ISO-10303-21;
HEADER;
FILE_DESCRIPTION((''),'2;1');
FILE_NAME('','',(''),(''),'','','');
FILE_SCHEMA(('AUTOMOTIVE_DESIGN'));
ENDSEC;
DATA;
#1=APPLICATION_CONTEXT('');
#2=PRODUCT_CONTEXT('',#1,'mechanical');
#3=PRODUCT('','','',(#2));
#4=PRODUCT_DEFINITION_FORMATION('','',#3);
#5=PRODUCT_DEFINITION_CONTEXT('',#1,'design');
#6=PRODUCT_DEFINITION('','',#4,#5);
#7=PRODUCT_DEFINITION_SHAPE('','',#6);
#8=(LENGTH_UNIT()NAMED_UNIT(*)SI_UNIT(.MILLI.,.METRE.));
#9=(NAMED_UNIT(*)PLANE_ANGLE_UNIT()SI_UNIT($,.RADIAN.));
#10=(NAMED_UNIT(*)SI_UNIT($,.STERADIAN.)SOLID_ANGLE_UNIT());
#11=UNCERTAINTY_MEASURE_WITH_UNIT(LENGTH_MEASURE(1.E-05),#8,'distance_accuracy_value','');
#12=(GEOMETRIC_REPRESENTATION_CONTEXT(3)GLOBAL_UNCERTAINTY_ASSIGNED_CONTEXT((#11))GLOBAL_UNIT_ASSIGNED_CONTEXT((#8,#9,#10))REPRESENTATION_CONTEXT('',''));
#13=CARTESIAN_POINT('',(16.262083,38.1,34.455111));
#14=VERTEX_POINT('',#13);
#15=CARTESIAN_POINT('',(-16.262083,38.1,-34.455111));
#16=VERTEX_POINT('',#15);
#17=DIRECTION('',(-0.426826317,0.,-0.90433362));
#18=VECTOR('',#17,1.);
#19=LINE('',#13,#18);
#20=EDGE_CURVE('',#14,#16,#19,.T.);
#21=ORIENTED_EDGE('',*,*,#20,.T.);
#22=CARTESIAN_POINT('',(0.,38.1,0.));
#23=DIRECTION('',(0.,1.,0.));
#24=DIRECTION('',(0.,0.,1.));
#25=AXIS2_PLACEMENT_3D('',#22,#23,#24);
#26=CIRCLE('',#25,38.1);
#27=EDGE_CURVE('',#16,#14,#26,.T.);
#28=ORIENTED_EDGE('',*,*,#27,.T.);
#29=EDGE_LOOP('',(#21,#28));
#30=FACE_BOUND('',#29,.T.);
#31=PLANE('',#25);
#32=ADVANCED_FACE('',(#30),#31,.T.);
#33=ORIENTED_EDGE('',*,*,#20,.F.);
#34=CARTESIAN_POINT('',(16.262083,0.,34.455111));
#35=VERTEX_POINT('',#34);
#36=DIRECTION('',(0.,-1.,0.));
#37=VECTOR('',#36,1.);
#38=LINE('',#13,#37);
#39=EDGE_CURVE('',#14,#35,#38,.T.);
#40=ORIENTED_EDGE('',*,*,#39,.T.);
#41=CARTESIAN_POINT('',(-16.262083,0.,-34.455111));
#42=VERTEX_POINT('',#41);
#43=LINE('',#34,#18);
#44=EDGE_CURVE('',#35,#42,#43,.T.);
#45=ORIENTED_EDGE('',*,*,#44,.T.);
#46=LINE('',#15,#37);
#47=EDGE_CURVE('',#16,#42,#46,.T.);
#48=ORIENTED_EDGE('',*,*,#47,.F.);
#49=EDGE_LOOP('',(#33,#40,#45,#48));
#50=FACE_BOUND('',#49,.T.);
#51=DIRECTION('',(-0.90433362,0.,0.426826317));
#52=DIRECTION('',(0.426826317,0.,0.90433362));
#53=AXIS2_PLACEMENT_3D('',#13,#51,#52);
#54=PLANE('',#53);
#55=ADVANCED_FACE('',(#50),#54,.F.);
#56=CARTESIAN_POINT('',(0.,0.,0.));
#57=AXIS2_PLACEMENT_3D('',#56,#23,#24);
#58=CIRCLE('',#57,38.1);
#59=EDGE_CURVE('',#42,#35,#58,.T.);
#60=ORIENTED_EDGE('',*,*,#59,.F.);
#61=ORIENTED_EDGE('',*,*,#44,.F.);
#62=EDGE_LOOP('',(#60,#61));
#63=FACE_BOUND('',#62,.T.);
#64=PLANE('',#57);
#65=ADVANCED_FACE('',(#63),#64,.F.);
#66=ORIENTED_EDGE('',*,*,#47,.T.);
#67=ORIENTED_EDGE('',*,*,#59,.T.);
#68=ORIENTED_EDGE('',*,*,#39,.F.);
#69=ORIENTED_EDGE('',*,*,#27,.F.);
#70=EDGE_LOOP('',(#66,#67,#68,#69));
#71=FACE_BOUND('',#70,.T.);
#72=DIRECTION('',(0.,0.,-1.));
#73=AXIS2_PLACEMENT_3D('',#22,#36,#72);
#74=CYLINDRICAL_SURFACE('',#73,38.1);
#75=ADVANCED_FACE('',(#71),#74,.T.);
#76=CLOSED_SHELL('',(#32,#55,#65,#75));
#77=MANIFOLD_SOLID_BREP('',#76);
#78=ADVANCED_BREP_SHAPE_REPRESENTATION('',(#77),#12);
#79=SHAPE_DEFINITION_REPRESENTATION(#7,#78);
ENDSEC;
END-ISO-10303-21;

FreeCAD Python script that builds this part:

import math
import FreeCAD as App
import Part
import Sketcher

V = App.Vector
Q = App.Units.Quantity

doc = App.newDocument("Part")
params = doc.addObject("Spreadsheet::Sheet", "Params")
for row, (alias, value) in enumerate([
    ("sketch1_radius", "1.5 in"),
    ("pad1_length", "1.5 in"),
], start=1):
    params.set(f"A{row}", alias)
    params.set(f"B{row}", "=" + value)
    params.setAlias(f"B{row}", alias)

body = doc.addObject("PartDesign::Body", "Body")

# Sketch on XZ plane
sketch1 = body.newObject("Sketcher::SketchObject", "Sketch")
sketch1.AttachmentSupport = (doc.getObject("XZ_Plane"), [""])
sketch1.MapMode = "FlatFace"
sketch1.addGeometry([
    Part.LineSegment(V(16.262083, 34.455111, 0), V(-16.262083, -34.455111, 0)),
    Part.ArcOfCircle(Part.Circle(V(0, 0, 0), V(0, 0, 1), 38.1), math.radians(64.733682), math.radians(244.733682)),
], False)
sketch1.addConstraint([
    Sketcher.Constraint("Coincident", 0, 1, 1, 1),
    Sketcher.Constraint("Coincident", 1, 2, 0, 2),
    Sketcher.Constraint("Coincident", 1, 3, -1, 1),
    Sketcher.Constraint("Radius", 1, Q("1.5 in")),
    Sketcher.Constraint("DistanceY", -1, 1, 0, 1, Q("34.455111 mm")),
    Sketcher.Constraint("DistanceY", 1, 2, -1, 1, Q("34.455111 mm")),
])
sketch1.setExpression("Constraints[3]", "Params.sketch1_radius")
pad1 = body.newObject("PartDesign::Pad", "Pad")
pad1.Profile = sketch1
pad1.setExpression("Length", "Params.pad1_length")
pad1.Reversed = True

doc.recompute()
